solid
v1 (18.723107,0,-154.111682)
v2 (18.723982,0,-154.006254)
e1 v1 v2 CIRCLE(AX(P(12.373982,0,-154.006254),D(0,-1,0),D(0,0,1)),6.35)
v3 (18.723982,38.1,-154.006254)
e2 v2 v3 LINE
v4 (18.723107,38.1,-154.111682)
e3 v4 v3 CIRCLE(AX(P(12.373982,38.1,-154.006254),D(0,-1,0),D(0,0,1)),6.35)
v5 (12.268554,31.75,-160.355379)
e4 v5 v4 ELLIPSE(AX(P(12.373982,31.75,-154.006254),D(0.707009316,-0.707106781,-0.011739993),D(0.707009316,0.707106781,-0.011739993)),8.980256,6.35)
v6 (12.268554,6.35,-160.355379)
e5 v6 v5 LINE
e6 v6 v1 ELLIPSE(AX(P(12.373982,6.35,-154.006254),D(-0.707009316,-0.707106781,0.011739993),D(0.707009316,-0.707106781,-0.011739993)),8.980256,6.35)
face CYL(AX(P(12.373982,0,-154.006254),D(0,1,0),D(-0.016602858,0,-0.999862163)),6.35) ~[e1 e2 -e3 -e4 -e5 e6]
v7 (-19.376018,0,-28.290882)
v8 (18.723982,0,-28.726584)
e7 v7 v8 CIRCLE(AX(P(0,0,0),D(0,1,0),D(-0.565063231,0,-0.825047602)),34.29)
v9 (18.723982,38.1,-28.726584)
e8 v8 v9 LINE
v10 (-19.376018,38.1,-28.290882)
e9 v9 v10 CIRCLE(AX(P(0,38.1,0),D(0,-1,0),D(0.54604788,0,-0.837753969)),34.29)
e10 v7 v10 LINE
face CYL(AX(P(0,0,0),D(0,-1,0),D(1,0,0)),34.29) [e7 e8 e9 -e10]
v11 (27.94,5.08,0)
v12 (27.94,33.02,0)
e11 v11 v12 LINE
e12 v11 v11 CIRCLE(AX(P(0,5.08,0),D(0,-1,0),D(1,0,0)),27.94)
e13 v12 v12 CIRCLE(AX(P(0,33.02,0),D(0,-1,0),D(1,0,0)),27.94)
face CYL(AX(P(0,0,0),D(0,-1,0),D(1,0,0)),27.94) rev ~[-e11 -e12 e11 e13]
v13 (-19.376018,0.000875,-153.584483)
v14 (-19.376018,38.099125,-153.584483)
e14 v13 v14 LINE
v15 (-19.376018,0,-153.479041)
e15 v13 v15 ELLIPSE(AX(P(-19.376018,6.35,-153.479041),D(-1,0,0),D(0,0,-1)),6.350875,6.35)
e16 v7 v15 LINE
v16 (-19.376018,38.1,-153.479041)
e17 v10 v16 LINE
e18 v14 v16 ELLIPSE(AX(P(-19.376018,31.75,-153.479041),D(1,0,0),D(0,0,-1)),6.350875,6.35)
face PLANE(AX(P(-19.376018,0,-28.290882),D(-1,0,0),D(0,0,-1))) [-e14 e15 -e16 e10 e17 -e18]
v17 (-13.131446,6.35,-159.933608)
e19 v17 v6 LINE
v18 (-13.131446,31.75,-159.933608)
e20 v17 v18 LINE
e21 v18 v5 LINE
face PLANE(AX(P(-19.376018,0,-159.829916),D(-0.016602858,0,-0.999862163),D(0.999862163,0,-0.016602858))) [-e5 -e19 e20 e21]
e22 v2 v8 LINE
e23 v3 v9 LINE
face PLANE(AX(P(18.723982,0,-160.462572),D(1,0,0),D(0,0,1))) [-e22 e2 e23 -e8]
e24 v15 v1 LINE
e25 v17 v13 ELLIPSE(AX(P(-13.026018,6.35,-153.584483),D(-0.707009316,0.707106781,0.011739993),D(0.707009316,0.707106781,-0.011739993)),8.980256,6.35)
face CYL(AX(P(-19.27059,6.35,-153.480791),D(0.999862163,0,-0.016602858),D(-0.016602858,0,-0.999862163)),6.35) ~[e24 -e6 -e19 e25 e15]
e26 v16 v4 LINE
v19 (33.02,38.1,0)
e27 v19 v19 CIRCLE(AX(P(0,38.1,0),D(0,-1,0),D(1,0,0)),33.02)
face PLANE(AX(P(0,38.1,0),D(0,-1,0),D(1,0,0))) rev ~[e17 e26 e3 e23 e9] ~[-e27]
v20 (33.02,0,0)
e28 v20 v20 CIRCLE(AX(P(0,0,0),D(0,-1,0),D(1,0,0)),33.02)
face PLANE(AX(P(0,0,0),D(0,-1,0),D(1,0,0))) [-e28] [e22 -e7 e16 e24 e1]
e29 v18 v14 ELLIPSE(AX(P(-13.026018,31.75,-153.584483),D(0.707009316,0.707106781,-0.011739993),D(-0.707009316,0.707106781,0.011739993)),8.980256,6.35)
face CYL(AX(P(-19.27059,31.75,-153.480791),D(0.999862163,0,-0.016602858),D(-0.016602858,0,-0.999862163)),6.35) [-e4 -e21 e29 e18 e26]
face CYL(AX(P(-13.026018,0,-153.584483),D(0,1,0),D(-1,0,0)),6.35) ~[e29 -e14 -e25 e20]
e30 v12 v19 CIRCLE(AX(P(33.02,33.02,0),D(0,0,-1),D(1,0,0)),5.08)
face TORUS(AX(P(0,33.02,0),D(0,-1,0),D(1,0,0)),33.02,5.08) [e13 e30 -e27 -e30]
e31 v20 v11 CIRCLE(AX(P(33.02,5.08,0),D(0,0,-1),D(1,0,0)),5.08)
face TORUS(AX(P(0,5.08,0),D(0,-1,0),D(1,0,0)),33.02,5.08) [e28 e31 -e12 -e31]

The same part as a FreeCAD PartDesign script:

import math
import FreeCAD as App
import Part
import Sketcher

V = App.Vector
Q = App.Units.Quantity


def edges_at(feature, points):
    """Names of the edges that pass closest to the given points."""
    edges = feature.Shape.Edges
    near = lambda p: min(range(len(edges)), key=lambda i: edges[i].distToShape(Part.Vertex(*p))[0])
    return sorted({f"Edge{near(p) + 1}" for p in points})

doc = App.newDocument("Part")
body = doc.addObject("PartDesign::Body", "Body")

# Sketch on XZ plane
sketch1 = body.newObject("Sketcher::SketchObject", "Sketch")
sketch1.AttachmentSupport = (doc.getObject("XZ_Plane"), [""])
sketch1.MapMode = "FlatFace"
sketch1.addGeometry(Part.Circle(V(0, 0, 0), V(0, 0, 1), 34), False)
sketch1.addGeometry(Part.Circle(V(0, 0, 0), V(0, 0, 1), 28), False)
sketch1.addConstraint(Sketcher.Constraint("Coincident", 0, 3, -1, 1))
sketch1.addConstraint(Sketcher.Constraint("Coincident", 1, 3, -1, 1))
sketch1.addConstraint(Sketcher.Constraint("Diameter", 0, Q("2.7 in")))
sketch1.addConstraint(Sketcher.Constraint("Diameter", 1, Q("2.2 in")))
pad1 = body.newObject("PartDesign::Pad", "Pad")
pad1.Profile = sketch1
pad1.Length = Q("1.5 in")
pad1.Reversed = True

# Sketch on XZ plane
sketch2 = body.newObject("Sketcher::SketchObject", "Sketch001")
sketch2.AttachmentSupport = (doc.getObject("XZ_Plane"), [""])
sketch2.MapMode = "FlatFace"
sketch2.addGeometry(Part.ArcOfCircle(Part.Circle(V(0, 0, 0), V(0, 0, 1), 34), math.radians(-124), math.radians(-57)), False)
sketch2.addGeometry(Part.LineSegment(V(-19, -28, 0), V(-19, -160, 0)), False)
sketch2.addGeometry(Part.LineSegment(V(-19, -160, 0), V(19, -160, 0)), False)
sketch2.addGeometry(Part.LineSegment(V(19, -160, 0), V(19, -29, 0)), False)
sketch2.addConstraint(Sketcher.Constraint("Coincident", 0, 1, 1, 1))
sketch2.addConstraint(Sketcher.Constraint("Coincident", 1, 2, 2, 1))
sketch2.addConstraint(Sketcher.Constraint("Coincident", 2, 2, 3, 1))
sketch2.addConstraint(Sketcher.Constraint("Coincident", 3, 2, 0, 2))
sketch2.addConstraint(Sketcher.Constraint("Vertical", 1))
sketch2.addConstraint(Sketcher.Constraint("Vertical", 3))
sketch2.addConstraint(Sketcher.Constraint("Coincident", 0, 3, -1, 1))
sketch2.addConstraint(Sketcher.Constraint("Radius", 0, Q("1.35 in")))
sketch2.addConstraint(Sketcher.Constraint("DistanceX", 1, 2, 2, 2, Q("1.5 in")))
sketch2.addConstraint(Sketcher.Constraint("DistanceY", 3, 1, 3, 2, 131.735989))
sketch2.addConstraint(Sketcher.Constraint("DistanceY", 3, 2, 0, 1, 0.435701))
sketch2.addConstraint(Sketcher.Constraint("DistanceY", 1, 2, 1, 1, 131.539034))
pad2 = body.newObject("PartDesign::Pad", "Pad001")
pad2.Profile = sketch2
pad2.Length = Q("1.5 in")
pad2.Reversed = True
doc.recompute()

fillet = body.newObject("PartDesign::Fillet", "Fillet")
fillet.Base = (pad2, edges_at(pad2, [
    (-0.326, 0, -160.146),
    (-0.326, 38.1, -160.146),
    (18.724, 19.05, -160.463),
    (-19.376, 19.05, -159.83),
]))
fillet.Radius = Q("0.25 in")
doc.recompute()

fillet2 = body.newObject("PartDesign::Fillet", "Fillet001")
fillet2.Base = (fillet, edges_at(fillet, [(-27.94, 0, 0)]))
fillet2.Radius = Q("0.2 in")
doc.recompute()

fillet3 = body.newObject("PartDesign::Fillet", "Fillet002")
fillet3.Base = (fillet2, edges_at(fillet2, [(-27.94, 38.1, 0)]))
fillet3.Radius = Q("0.2 in")

doc.recompute()
